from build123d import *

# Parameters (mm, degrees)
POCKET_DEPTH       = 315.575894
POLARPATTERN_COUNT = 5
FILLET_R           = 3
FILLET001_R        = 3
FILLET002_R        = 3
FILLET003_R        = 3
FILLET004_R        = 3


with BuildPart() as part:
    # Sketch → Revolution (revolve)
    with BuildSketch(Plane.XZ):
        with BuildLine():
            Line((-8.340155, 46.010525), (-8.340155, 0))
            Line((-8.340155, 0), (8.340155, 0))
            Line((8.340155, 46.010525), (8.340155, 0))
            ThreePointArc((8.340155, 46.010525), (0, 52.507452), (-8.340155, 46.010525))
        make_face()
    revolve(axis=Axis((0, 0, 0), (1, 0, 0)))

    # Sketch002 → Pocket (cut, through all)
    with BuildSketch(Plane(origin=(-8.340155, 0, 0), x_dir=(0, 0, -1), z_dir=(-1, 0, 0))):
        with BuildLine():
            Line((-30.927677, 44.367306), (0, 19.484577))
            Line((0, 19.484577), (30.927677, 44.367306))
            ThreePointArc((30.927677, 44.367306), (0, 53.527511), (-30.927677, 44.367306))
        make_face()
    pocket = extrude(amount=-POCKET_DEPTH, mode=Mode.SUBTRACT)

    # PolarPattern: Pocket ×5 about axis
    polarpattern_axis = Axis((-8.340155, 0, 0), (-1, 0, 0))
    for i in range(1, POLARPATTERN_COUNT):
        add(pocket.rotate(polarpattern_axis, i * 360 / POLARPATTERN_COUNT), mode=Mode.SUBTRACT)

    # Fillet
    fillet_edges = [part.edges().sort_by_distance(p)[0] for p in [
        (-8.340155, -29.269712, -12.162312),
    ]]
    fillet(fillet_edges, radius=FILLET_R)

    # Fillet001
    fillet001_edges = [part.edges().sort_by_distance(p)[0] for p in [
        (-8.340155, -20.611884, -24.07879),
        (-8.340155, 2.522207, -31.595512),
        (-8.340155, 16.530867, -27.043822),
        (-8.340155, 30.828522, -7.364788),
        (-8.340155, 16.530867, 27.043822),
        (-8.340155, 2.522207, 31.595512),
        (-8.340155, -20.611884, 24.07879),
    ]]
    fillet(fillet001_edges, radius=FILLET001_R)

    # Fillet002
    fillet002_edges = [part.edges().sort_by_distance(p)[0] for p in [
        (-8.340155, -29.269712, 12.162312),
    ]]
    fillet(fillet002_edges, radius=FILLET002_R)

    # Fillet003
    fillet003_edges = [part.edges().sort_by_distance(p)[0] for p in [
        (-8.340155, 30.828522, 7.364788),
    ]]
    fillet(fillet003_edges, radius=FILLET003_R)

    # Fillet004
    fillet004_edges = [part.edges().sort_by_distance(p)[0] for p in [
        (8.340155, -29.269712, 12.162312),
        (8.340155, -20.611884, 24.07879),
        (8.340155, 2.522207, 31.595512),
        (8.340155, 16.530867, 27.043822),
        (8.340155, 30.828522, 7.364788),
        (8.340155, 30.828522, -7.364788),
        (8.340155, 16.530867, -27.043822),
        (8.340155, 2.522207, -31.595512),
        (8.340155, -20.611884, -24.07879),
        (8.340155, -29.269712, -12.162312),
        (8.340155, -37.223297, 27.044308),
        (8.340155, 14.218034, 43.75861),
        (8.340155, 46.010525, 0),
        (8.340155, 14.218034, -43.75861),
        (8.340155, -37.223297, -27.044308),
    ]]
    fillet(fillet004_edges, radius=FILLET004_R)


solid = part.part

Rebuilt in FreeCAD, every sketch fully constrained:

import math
import FreeCAD as App
import Part
import Sketcher
Q = App.Units.Quantity


def edges_at(feature, points):
    """Names of the edges that pass closest to the given points."""
    edges = feature.Shape.Edges
    near = lambda p: min(range(len(edges)), key=lambda i: edges[i].distToShape(Part.Vertex(*p))[0])
    return sorted({f"Edge{near(p) + 1}" for p in points})

doc = App.newDocument("Part")
body = doc.addObject("PartDesign::Body", "Body")

# Sketch on XZ plane
sketch1 = body.newObject("Sketcher::SketchObject", "Sketch")
sketch1.AttachmentSupport = (doc.getObject("XZ_Plane"), [""])
sketch1.MapMode = "FlatFace"
sketch1.addGeometry([
    Part.LineSegment(App.Vector(-8, 46, 0), App.Vector(-8, 0, 0)),
    Part.LineSegment(App.Vector(-8, 0, 0), App.Vector(8, 0, 0)),
    Part.LineSegment(App.Vector(8, 0, 0), App.Vector(8, 46, 0)),
    Part.ArcOfCircle(Part.Circle(App.Vector(0, 44, 0), App.Vector(0, 0, 1), 9), math.radians(14), math.radians(166)),
], False)
sketch1.addConstraint([
    Sketcher.Constraint("Coincident", 0, 2, 1, 1),
    Sketcher.Constraint("Coincident", 1, 2, 2, 1),
    Sketcher.Constraint("Coincident", 2, 2, 3, 1),
    Sketcher.Constraint("Coincident", 3, 2, 0, 1),
    Sketcher.Constraint("Vertical", 0),
    Sketcher.Constraint("Horizontal", 1),
    Sketcher.Constraint("Vertical", 2),
    Sketcher.Constraint("Symmetric", 0, 2, 1, 2, -1, 1),
    Sketcher.Constraint("PointOnObject", 3, 3, -2),
    Sketcher.Constraint("Radius", 3, Q("8.601624 mm")),
    Sketcher.Constraint("DistanceX", 1, 1, 1, 2, Q("16.68031 mm")),
    Sketcher.Constraint("DistanceY", 0, 2, 0, 1, Q("46.010525 mm")),
])
revolution = body.newObject("PartDesign::Revolution", "Revolution")
revolution.Profile = sketch1
revolution.ReferenceAxis = (sketch1, ["H_Axis"])
revolution.Angle = 360

# Sketch on YZ plane
sketch2 = body.newObject("Sketcher::SketchObject", "Sketch001")
sketch2.AttachmentSupport = (doc.getObject("YZ_Plane"), [""])
sketch2.MapMode = "FlatFace"
sketch2.AttachmentOffset = App.Placement(App.Vector(0, 0, -8.340155), App.Rotation())
sketch2.addGeometry([
    Part.LineSegment(App.Vector(-44, 31, 0), App.Vector(-19, 0, 0)),
    Part.LineSegment(App.Vector(-19, 0, 0), App.Vector(-44, -31, 0)),
    Part.ArcOfCircle(Part.Circle(App.Vector(3, 0, 0), App.Vector(0, 0, 1), 57), math.radians(147), math.radians(213)),
], False)
sketch2.addConstraint([
    Sketcher.Constraint("Coincident", 0, 2, 1, 1),
    Sketcher.Constraint("Coincident", 1, 2, 2, 2),
    Sketcher.Constraint("Coincident", 2, 1, 0, 1),
    Sketcher.Constraint("Symmetric", 1, 2, 2, 1, -1),
    Sketcher.Constraint("PointOnObject", 0, 2, -1),
    Sketcher.Constraint("Radius", 2, Q("56.79079 mm")),
    Sketcher.Constraint("DistanceX", -1, 1, 2, 3, Q("3.263279 mm")),
    Sketcher.Constraint("DistanceX", 1, 2, 0, 2, Q("24.882729 mm")),
    Sketcher.Constraint("Distance", 0, Q("39.694728 mm")),
])
pocket1 = body.newObject("PartDesign::Pocket", "Pocket")
pocket1.Profile = sketch2
pocket1.Type = "ThroughAll"
pocket1.Reversed = True
doc.recompute()

polarpattern = body.newObject("PartDesign::PolarPattern", "PolarPattern")
polarpattern.Originals = [pocket1]
polarpattern.Axis = (doc.getObject("X_Axis"), [""])
polarpattern.Angle = 360
polarpattern.Occurrences = 5
body.Tip = polarpattern
doc.recompute()

fillet = body.newObject("PartDesign::Fillet", "Fillet")
fillet.Base = (polarpattern, edges_at(polarpattern, [(-8.34, -29.27, -12.162)]))
fillet.Radius = 3
doc.recompute()

fillet2 = body.newObject("PartDesign::Fillet", "Fillet001")
fillet2.Base = (fillet, edges_at(fillet, [
    (-8.34, -20.612, -24.079),
    (-8.34, 2.522, -31.596),
    (-8.34, 16.531, -27.044),
    (-8.34, 30.829, -7.365),
    (-8.34, 16.531, 27.044),
    (-8.34, 2.522, 31.596),
    (-8.34, -20.612, 24.079),
]))
fillet2.Radius = 3
doc.recompute()

fillet3 = body.newObject("PartDesign::Fillet", "Fillet002")
fillet3.Base = (fillet2, edges_at(fillet2, [(-8.34, -28.307, 10.966)]))
fillet3.Radius = 3
doc.recompute()

fillet4 = body.newObject("PartDesign::Fillet", "Fillet003")
fillet4.Base = (fillet3, edges_at(fillet3, [(-8.34, 29.347, 7.767)]))
fillet4.Radius = 3
doc.recompute()

fillet5 = body.newObject("PartDesign::Fillet", "Fillet004")
fillet5.Base = (fillet4, edges_at(fillet4, [
    (8.34, -29.27, 12.162),
    (8.34, -20.612, 24.079),
    (8.34, 2.522, 31.596),
    (8.34, 16.531, 27.044),
    (8.34, 30.829, 7.365),
    (8.34, 30.829, -7.365),
    (8.34, 16.531, -27.044),
    (8.34, 2.522, -31.596),
    (8.34, -20.612, -24.079),
    (8.34, -29.27, -12.162),
    (8.34, -37.223, 27.044),
    (8.34, 14.218, 43.759),
    (8.34, 46.011, 0),
    (8.34, 14.218, -43.759),
    (8.34, -37.223, -27.044),
]))
fillet5.Radius = 3

doc.recompute()
